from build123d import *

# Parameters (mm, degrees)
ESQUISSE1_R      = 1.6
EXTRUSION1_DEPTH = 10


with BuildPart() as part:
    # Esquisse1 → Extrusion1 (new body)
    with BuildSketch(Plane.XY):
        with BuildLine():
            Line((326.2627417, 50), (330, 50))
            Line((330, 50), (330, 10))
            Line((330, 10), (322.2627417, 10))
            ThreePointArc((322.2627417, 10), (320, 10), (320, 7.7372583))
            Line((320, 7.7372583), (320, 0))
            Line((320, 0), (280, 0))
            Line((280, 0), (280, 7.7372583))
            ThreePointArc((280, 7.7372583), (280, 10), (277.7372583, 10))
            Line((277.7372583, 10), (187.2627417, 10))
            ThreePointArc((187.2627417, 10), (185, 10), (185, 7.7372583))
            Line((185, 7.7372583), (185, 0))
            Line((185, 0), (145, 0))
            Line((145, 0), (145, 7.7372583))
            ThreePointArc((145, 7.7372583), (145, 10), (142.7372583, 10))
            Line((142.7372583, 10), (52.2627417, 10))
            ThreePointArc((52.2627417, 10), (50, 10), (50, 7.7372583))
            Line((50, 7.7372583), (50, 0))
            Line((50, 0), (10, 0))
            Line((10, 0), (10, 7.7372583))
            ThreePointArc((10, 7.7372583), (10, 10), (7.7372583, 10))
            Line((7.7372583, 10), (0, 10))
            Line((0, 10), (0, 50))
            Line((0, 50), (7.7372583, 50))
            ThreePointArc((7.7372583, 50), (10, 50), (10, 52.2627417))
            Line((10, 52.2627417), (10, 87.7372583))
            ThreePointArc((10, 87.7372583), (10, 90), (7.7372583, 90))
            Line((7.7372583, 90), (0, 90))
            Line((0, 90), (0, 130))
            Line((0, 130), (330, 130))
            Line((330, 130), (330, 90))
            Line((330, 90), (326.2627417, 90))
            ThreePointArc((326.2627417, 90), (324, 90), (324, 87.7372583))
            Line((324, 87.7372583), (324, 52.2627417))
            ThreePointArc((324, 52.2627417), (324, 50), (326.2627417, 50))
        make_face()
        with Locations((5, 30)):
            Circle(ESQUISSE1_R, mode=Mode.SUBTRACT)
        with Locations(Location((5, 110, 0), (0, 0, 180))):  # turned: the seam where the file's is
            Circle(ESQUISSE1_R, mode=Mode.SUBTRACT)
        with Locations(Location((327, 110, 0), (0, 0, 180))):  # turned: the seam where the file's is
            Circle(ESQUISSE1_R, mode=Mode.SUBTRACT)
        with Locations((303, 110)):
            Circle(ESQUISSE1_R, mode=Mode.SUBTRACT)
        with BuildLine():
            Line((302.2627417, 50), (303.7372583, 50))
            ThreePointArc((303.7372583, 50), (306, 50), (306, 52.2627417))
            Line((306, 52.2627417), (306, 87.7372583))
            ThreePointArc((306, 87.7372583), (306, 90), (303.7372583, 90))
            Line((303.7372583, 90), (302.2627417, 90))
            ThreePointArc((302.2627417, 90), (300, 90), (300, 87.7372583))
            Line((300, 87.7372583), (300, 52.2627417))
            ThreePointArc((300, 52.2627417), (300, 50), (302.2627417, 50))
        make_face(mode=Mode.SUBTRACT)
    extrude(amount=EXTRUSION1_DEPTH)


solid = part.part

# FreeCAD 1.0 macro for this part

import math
import FreeCAD as App
import Part
import Sketcher
Q = App.Units.Quantity

doc = App.newDocument("Part")
body = doc.addObject("PartDesign::Body", "Body")

# Sketch on XY plane
sketch1 = doc.addObject("Sketcher::SketchObject", "Sketch")
body.addObject(sketch1)
sketch1.AttachmentSupport = (doc.XY_Plane, [""])
sketch1.MapMode = "FlatFace"
sketch1.addGeometry(Part.LineSegment(App.Vector(330, 50, 0), App.Vector(326.3, 50, 0)), False)
sketch1.addGeometry(Part.ArcOfCircle(Part.Circle(App.Vector(325.1, 51.1, 0), App.Vector(0, 0, 1), 1.6), math.radians(135), math.radians(315)), False)
sketch1.addGeometry(Part.LineSegment(App.Vector(324, 52.3, 0), App.Vector(324, 87.7, 0)), False)
sketch1.addGeometry(Part.ArcOfCircle(Part.Circle(App.Vector(325.1, 88.9, 0), App.Vector(0, 0, 1), 1.6), math.radians(45), math.radians(225)), False)
sketch1.addGeometry(Part.LineSegment(App.Vector(326.3, 90, 0), App.Vector(330, 90, 0)), False)
sketch1.addGeometry(Part.LineSegment(App.Vector(330, 90, 0), App.Vector(330, 130, 0)), False)
sketch1.addGeometry(Part.LineSegment(App.Vector(330, 130, 0), App.Vector(0, 130, 0)), False)
sketch1.addGeometry(Part.LineSegment(App.Vector(0, 130, 0), App.Vector(0, 90, 0)), False)
sketch1.addGeometry(Part.LineSegment(App.Vector(0, 90, 0), App.Vector(7.7, 90, 0)), False)
sketch1.addGeometry(Part.ArcOfCircle(Part.Circle(App.Vector(8.9, 88.9, 0), App.Vector(0, 0, 1), 1.6), math.radians(-45), math.radians(135)), False)
sketch1.addGeometry(Part.LineSegment(App.Vector(10, 87.7, 0), App.Vector(10, 52.3, 0)), False)
sketch1.addGeometry(Part.ArcOfCircle(Part.Circle(App.Vector(8.9, 51.1, 0), App.Vector(0, 0, 1), 1.6), math.radians(-135), math.radians(45)), False)
sketch1.addGeometry(Part.LineSegment(App.Vector(7.7, 50, 0), App.Vector(0, 50, 0)), False)
sketch1.addGeometry(Part.LineSegment(App.Vector(0, 50, 0), App.Vector(0, 10, 0)), False)
sketch1.addGeometry(Part.LineSegment(App.Vector(0, 10, 0), App.Vector(7.7, 10, 0)), False)
sketch1.addGeometry(Part.ArcOfCircle(Part.Circle(App.Vector(8.9, 8.9, 0), App.Vector(0, 0, 1), 1.6), math.radians(-45), math.radians(135)), False)
sketch1.addGeometry(Part.LineSegment(App.Vector(10, 7.7, 0), App.Vector(10, 0, 0)), False)
sketch1.addGeometry(Part.LineSegment(App.Vector(10, 0, 0), App.Vector(50, 0, 0)), False)
sketch1.addGeometry(Part.LineSegment(App.Vector(50, 0, 0), App.Vector(50, 7.7, 0)), False)
sketch1.addGeometry(Part.ArcOfCircle(Part.Circle(App.Vector(51.1, 8.9, 0), App.Vector(0, 0, 1), 1.6), math.radians(45), math.radians(225)), False)
sketch1.addGeometry(Part.LineSegment(App.Vector(52.3, 10, 0), App.Vector(142.7, 10, 0)), False)
sketch1.addGeometry(Part.ArcOfCircle(Part.Circle(App.Vector(143.9, 8.9, 0), App.Vector(0, 0, 1), 1.6), math.radians(-45), math.radians(135)), False)
sketch1.addGeometry(Part.LineSegment(App.Vector(145, 7.7, 0), App.Vector(145, 0, 0)), False)
sketch1.addGeometry(Part.LineSegment(App.Vector(145, 0, 0), App.Vector(185, 0, 0)), False)
sketch1.addGeometry(Part.LineSegment(App.Vector(185, 0, 0), App.Vector(185, 7.7, 0)), False)
sketch1.addGeometry(Part.ArcOfCircle(Part.Circle(App.Vector(186.1, 8.9, 0), App.Vector(0, 0, 1), 1.6), math.radians(45), math.radians(225)), False)
sketch1.addGeometry(Part.LineSegment(App.Vector(187.3, 10, 0), App.Vector(277.7, 10, 0)), False)
sketch1.addGeometry(Part.ArcOfCircle(Part.Circle(App.Vector(278.9, 8.9, 0), App.Vector(0, 0, 1), 1.6), math.radians(-45), math.radians(135)), False)
sketch1.addGeometry(Part.LineSegment(App.Vector(280, 7.7, 0), App.Vector(280, 0, 0)), False)
sketch1.addGeometry(Part.LineSegment(App.Vector(280, 0, 0), App.Vector(320, 0, 0)), False)
sketch1.addGeometry(Part.LineSegment(App.Vector(320, 0, 0), App.Vector(320, 7.7, 0)), False)
sketch1.addGeometry(Part.ArcOfCircle(Part.Circle(App.Vector(321.1, 8.9, 0), App.Vector(0, 0, 1), 1.6), math.radians(45), math.radians(225)), False)
sketch1.addGeometry(Part.LineSegment(App.Vector(322.3, 10, 0), App.Vector(330, 10, 0)), False)
sketch1.addGeometry(Part.LineSegment(App.Vector(330, 10, 0), App.Vector(330, 50, 0)), False)
sketch1.addGeometry(Part.ArcOfCircle(Part.Circle(App.Vector(301.1, 51.1, 0), App.Vector(0, 0, 1), 1.6), math.radians(135), math.radians(315)), False)
sketch1.addGeometry(Part.LineSegment(App.Vector(300, 52.3, 0), App.Vector(300, 87.7, 0)), False)
sketch1.addGeometry(Part.ArcOfCircle(Part.Circle(App.Vector(301.1, 88.9, 0), App.Vector(0, 0, 1), 1.6), math.radians(45), math.radians(225)), False)
sketch1.addGeometry(Part.LineSegment(App.Vector(302.3, 90, 0), App.Vector(303.7, 90, 0)), False)
sketch1.addGeometry(Part.ArcOfCircle(Part.Circle(App.Vector(304.9, 88.9, 0), App.Vector(0, 0, 1), 1.6), math.radians(-45), math.radians(135)), False)
sketch1.addGeometry(Part.LineSegment(App.Vector(306, 87.7, 0), App.Vector(306, 52.3, 0)), False)
sketch1.addGeometry(Part.ArcOfCircle(Part.Circle(App.Vector(304.9, 51.1, 0), App.Vector(0, 0, 1), 1.6), math.radians(-135), math.radians(45)), False)
sketch1.addGeometry(Part.LineSegment(App.Vector(303.7, 50, 0), App.Vector(302.3, 50, 0)), False)
sketch1.addGeometry(Part.Circle(App.Vector(5, 30, 0), App.Vector(0, 0, 1), 1.6), False)
sketch1.addGeometry(Part.Circle(App.Vector(327, 110, 0), App.Vector(0, 0, 1), 1.6), False)
sketch1.addGeometry(Part.Circle(App.Vector(303, 110, 0), App.Vector(0, 0, 1), 1.6), False)
sketch1.addGeometry(Part.Circle(App.Vector(5, 110, 0), App.Vector(0, 0, 1), 1.6), False)
sketch1.addConstraint(Sketcher.Constraint("Coincident", 0, 2, 1, 2))
sketch1.addConstraint(Sketcher.Constraint("Coincident", 1, 1, 2, 1))
sketch1.addConstraint(Sketcher.Constraint("Coincident", 2, 2, 3, 2))
sketch1.addConstraint(Sketcher.Constraint("Coincident", 3, 1, 4, 1))
sketch1.addConstraint(Sketcher.Constraint("Coincident", 4, 2, 5, 1))
sketch1.addConstraint(Sketcher.Constraint("Coincident", 5, 2, 6, 1))
sketch1.addConstraint(Sketcher.Constraint("Coincident", 6, 2, 7, 1))
sketch1.addConstraint(Sketcher.Constraint("Coincident", 7, 2, 8, 1))
sketch1.addConstraint(Sketcher.Constraint("Coincident", 8, 2, 9, 2))
sketch1.addConstraint(Sketcher.Constraint("Coincident", 9, 1, 10, 1))
sketch1.addConstraint(Sketcher.Constraint("Coincident", 10, 2, 11, 2))
sketch1.addConstraint(Sketcher.Constraint("Coincident", 11, 1, 12, 1))
sketch1.addConstraint(Sketcher.Constraint("Coincident", 12, 2, 13, 1))
sketch1.addConstraint(Sketcher.Constraint("Coincident", 13, 2, 14, 1))
sketch1.addConstraint(Sketcher.Constraint("Coincident", 14, 2, 15, 2))
sketch1.addConstraint(Sketcher.Constraint("Coincident", 15, 1, 16, 1))
sketch1.addConstraint(Sketcher.Constraint("Coincident", 16, 2, 17, 1))
sketch1.addConstraint(Sketcher.Constraint("Coincident", 17, 2, 18, 1))
sketch1.addConstraint(Sketcher.Constraint("Coincident", 18, 2, 19, 2))
sketch1.addConstraint(Sketcher.Constraint("Coincident", 19, 1, 20, 1))
sketch1.addConstraint(Sketcher.Constraint("Coincident", 20, 2, 21, 2))
sketch1.addConstraint(Sketcher.Constraint("Coincident", 21, 1, 22, 1))
sketch1.addConstraint(Sketcher.Constraint("Coincident", 22, 2, 23, 1))
sketch1.addConstraint(Sketcher.Constraint("Coincident", 23, 2, 24, 1))
sketch1.addConstraint(Sketcher.Constraint("Coincident", 24, 2, 25, 2))
sketch1.addConstraint(Sketcher.Constraint("Coincident", 25, 1, 26, 1))
sketch1.addConstraint(Sketcher.Constraint("Coincident", 26, 2, 27, 2))
sketch1.addConstraint(Sketcher.Constraint("Coincident", 27, 1, 28, 1))
sketch1.addConstraint(Sketcher.Constraint("Coincident", 28, 2, 29, 1))
sketch1.addConstraint(Sketcher.Constraint("Coincident", 29, 2, 30, 1))
sketch1.addConstraint(Sketcher.Constraint("Coincident", 30, 2, 31, 2))
sketch1.addConstraint(Sketcher.Constraint("Coincident", 31, 1, 32, 1))
sketch1.addConstraint(Sketcher.Constraint("Coincident", 32, 2, 33, 1))
sketch1.addConstraint(Sketcher.Constraint("Coincident", 33, 2, 0, 1))
sketch1.addConstraint(Sketcher.Constraint("Coincident", 34, 1, 35, 1))
sketch1.addConstraint(Sketcher.Constraint("Coincident", 35, 2, 36, 2))
sketch1.addConstraint(Sketcher.Constraint("Coincident", 36, 1, 37, 1))
sketch1.addConstraint(Sketcher.Constraint("Coincident", 37, 2, 38, 2))
sketch1.addConstraint(Sketcher.Constraint("Coincident", 38, 1, 39, 1))
sketch1.addConstraint(Sketcher.Constraint("Coincident", 39, 2, 40, 2))
sketch1.addConstraint(Sketcher.Constraint("Coincident", 40, 1, 41, 1))
sketch1.addConstraint(Sketcher.Constraint("Coincident", 41, 2, 34, 2))
sketch1.addConstraint(Sketcher.Constraint("Horizontal", 0))
sketch1.addConstraint(Sketcher.Constraint("Vertical", 2))
sketch1.addConstraint(Sketcher.Constraint("Horizontal", 4))
sketch1.addConstraint(Sketcher.Constraint("Vertical", 5))
sketch1.addConstraint(Sketcher.Constraint("Horizontal", 6))
sketch1.addConstraint(Sketcher.Constraint("Vertical", 7))
sketch1.addConstraint(Sketcher.Constraint("Horizontal", 8))
sketch1.addConstraint(Sketcher.Constraint("Vertical", 10))
sketch1.addConstraint(Sketcher.Constraint("Horizontal", 12))
sketch1.addConstraint(Sketcher.Constraint("Vertical", 13))
sketch1.addConstraint(Sketcher.Constraint("Horizontal", 14))
sketch1.addConstraint(Sketcher.Constraint("Vertical", 16))
sketch1.addConstraint(Sketcher.Constraint("Horizontal", 17))
sketch1.addConstraint(Sketcher.Constraint("Vertical", 18))
sketch1.addConstraint(Sketcher.Constraint("Horizontal", 20))
sketch1.addConstraint(Sketcher.Constraint("Vertical", 22))
sketch1.addConstraint(Sketcher.Constraint("Horizontal", 23))
sketch1.addConstraint(Sketcher.Constraint("Vertical", 24))
sketch1.addConstraint(Sketcher.Constraint("Horizontal", 26))
sketch1.addConstraint(Sketcher.Constraint("Vertical", 28))
sketch1.addConstraint(Sketcher.Constraint("Horizontal", 29))
sketch1.addConstraint(Sketcher.Constraint("Vertical", 30))
sketch1.addConstraint(Sketcher.Constraint("Horizontal", 32))
sketch1.addConstraint(Sketcher.Constraint("Vertical", 33))
sketch1.addConstraint(Sketcher.Constraint("Vertical", 35))
sketch1.addConstraint(Sketcher.Constraint("Horizontal", 37))
sketch1.addConstraint(Sketcher.Constraint("Vertical", 39))
sketch1.addConstraint(Sketcher.Constraint("Horizontal", 41))
sketch1.addConstraint(Sketcher.Constraint("Equal", 1, 3))
sketch1.addConstraint(Sketcher.Constraint("Equal", 3, 9))
sketch1.addConstraint(Sketcher.Constraint("Equal", 9, 11))
sketch1.addConstraint(Sketcher.Constraint("Equal", 11, 15))
sketch1.addConstraint(Sketcher.Constraint("Equal", 15, 19))
sketch1.addConstraint(Sketcher.Constraint("Equal", 19, 21))
sketch1.addConstraint(Sketcher.Constraint("Equal", 21, 25))
sketch1.addConstraint(Sketcher.Constraint("Equal", 25, 27))
sketch1.addConstraint(Sketcher.Constraint("Equal", 27, 31))
sketch1.addConstraint(Sketcher.Constraint("Equal", 31, 34))
sketch1.addConstraint(Sketcher.Constraint("Equal", 34, 36))
sketch1.addConstraint(Sketcher.Constraint("Equal", 36, 38))
sketch1.addConstraint(Sketcher.Constraint("Equal", 38, 40))
sketch1.addConstraint(Sketcher.Constraint("Equal", 40, 42))
sketch1.addConstraint(Sketcher.Constraint("Equal", 42, 43))
sketch1.addConstraint(Sketcher.Constraint("Equal", 43, 44))
sketch1.addConstraint(Sketcher.Constraint("Equal", 44, 45))
sketch1.addConstraint(Sketcher.Constraint("PointOnObject", 6, 2, -2))
sketch1.addConstraint(Sketcher.Constraint("PointOnObject", 12, 2, -2))
sketch1.addConstraint(Sketcher.Constraint("PointOnObject", 16, 2, -1))
sketch1.addConstraint(Sketcher.Constraint("PointOnObject", 22, 2, -1))
sketch1.addConstraint(Sketcher.Constraint("PointOnObject", 28, 2, -1))
sketch1.addConstraint(Sketcher.Constraint("Horizontal", 3, 3, 9, 3))
sketch1.addConstraint(Sketcher.Constraint("Horizontal", 1, 3, 11, 3))
sketch1.addConstraint(Sketcher.Constraint("Horizontal", 15, 3, 19, 3))
sketch1.addConstraint(Sketcher.Constraint("Horizontal", 19, 3, 21, 3))
sketch1.addConstraint(Sketcher.Constraint("Horizontal", 21, 3, 25, 3))
sketch1.addConstraint(Sketcher.Constraint("Horizontal", 25, 3, 27, 3))
sketch1.addConstraint(Sketcher.Constraint("Horizontal", 27, 3, 31, 3))
sketch1.addConstraint(Sketcher.Constraint("Horizontal", 11, 3, 34, 3))
sketch1.addConstraint(Sketcher.Constraint("Horizontal", 9, 3, 36, 3))
sketch1.addConstraint(Sketcher.Constraint("Horizontal", 36, 3, 38, 3))
sketch1.addConstraint(Sketcher.Constraint("Horizontal", 34, 3, 40, 3))
sketch1.addConstraint(Sketcher.Constraint("Horizontal", 43, 3, 44, 3))
sketch1.addConstraint(Sketcher.Constraint("Horizontal", 44, 3, 45, 3))
sketch1.addConstraint(Sketcher.Constraint("Horizontal", 4, 2, 7, 2))
sketch1.addConstraint(Sketcher.Constraint("Horizontal", 2, 2, 9, 1))
sketch1.addConstraint(Sketcher.Constraint("Horizontal", 1, 1, 10, 2))
sketch1.addConstraint(Sketcher.Constraint("Horizontal", 0, 2, 11, 1))
sketch1.addConstraint(Sketcher.Constraint("Horizontal", 15, 1, 18, 2))
sketch1.addConstraint(Sketcher.Constraint("Horizontal", 14, 2, 19, 1))
sketch1.addConstraint(Sketcher.Constraint("Horizontal", 18, 2, 21, 1))
sketch1.addConstraint(Sketcher.Constraint("Horizontal", 21, 1, 24, 2))
sketch1.addConstraint(Sketcher.Constraint("Horizontal", 20, 2, 25, 1))
sketch1.addConstraint(Sketcher.Constraint("Horizontal", 24, 2, 27, 1))
sketch1.addConstraint(Sketcher.Constraint("Horizontal", 27, 1, 30, 2))
sketch1.addConstraint(Sketcher.Constraint("Horizontal", 26, 2, 31, 1))
sketch1.addConstraint(Sketcher.Constraint("Horizontal", 10, 2, 34, 1))
sketch1.addConstraint(Sketcher.Constraint("Horizontal", 9, 1, 35, 2))
sketch1.addConstraint(Sketcher.Constraint("Horizontal", 8, 2, 36, 1))
sketch1.addConstraint(Sketcher.Constraint("Horizontal", 35, 2, 38, 1))
sketch1.addConstraint(Sketcher.Constraint("Horizontal", 34, 1, 39, 2))
sketch1.addConstraint(Sketcher.Constraint("Horizontal", 33, 2, 40, 1))
sketch1.addConstraint(Sketcher.Constraint("Vertical", 1, 3, 3, 3))
sketch1.addConstraint(Sketcher.Constraint("Vertical", 11, 3, 15, 3))
sketch1.addConstraint(Sketcher.Constraint("Vertical", 42, 3, 45, 3))
sketch1.addConstraint(Sketcher.Constraint("Vertical", 0, 2, 3, 1))
sketch1.addConstraint(Sketcher.Constraint("Vertical", 11, 1, 14, 2))
sketch1.addConstraint(Sketcher.Constraint("Vertical", 10, 2, 15, 1))
sketch1.addConstraint(Sketcher.Constraint("Vertical", 5, 2, 32, 2))
sketch1.addConstraint(Sketcher.Constraint("Equal", 17, 23))
sketch1.addConstraint(Sketcher.Constraint("Equal", 20, 26))
sketch1.addConstraint(Sketcher.Constraint("Equal", 23, 29))
sketch1.addConstraint(Sketcher.Constraint("Equal", 14, 32))
sketch1.addConstraint(Sketcher.Constraint("Equal", 29, 5))
sketch1.addConstraint(Sketcher.Constraint("Equal", 7, 13))
sketch1.addConstraint(Sketcher.Constraint("Equal", 32, 16))
sketch1.addConstraint(Sketcher.Constraint("Diameter", 42, Q("3.2 mm")))
sketch1.addConstraint(Sketcher.Constraint("DistanceX", 6, 2, 6, 1, Q("330 mm")))
sketch1.addConstraint(Sketcher.Constraint("DistanceX", 17, 1, 17, 2, Q("40 mm")))
sketch1.addConstraint(Sketcher.Constraint("DistanceX", -1, 1, 42, 3, Q("5 mm")))
sketch1.addConstraint(Sketcher.Constraint("DistanceY", -1, 1, 42, 3, Q("30 mm")))
sketch1.addConstraint(Sketcher.Constraint("DistanceX", -1, 1, 43, 3, Q("327 mm")))
sketch1.addConstraint(Sketcher.Constraint("DistanceY", -1, 1, 43, 3, Q("110 mm")))
sketch1.addConstraint(Sketcher.Constraint("DistanceX", -1, 1, 44, 3, Q("303 mm")))
sketch1.addConstraint(Sketcher.Constraint("DistanceY", -1, 1, 0, 2, Q("50 mm")))
sketch1.addConstraint(Sketcher.Constraint("DistanceX", -1, 1, 1, 1, Q("324 mm")))
sketch1.addConstraint(Sketcher.Constraint("DistanceY", -1, 1, 3, 1, Q("90 mm")))
sketch1.addConstraint(Sketcher.Constraint("DistanceX", -1, 1, 9, 1, Q("10 mm")))
sketch1.addConstraint(Sketcher.Constraint("DistanceX", -1, 1, 34, 1, Q("300 mm")))
sketch1.addConstraint(Sketcher.Constraint("DistanceX", -1, 1, 38, 1, Q("306 mm")))
sketch1.addConstraint(Sketcher.Constraint("DistanceX", -1, 1, 1, 3, Q("325.131371 mm")))
pad1 = doc.addObject("PartDesign::Pad", "Pad")
body.addObject(pad1)
pad1.Profile = sketch1
pad1.Length = 10

doc.recompute()
